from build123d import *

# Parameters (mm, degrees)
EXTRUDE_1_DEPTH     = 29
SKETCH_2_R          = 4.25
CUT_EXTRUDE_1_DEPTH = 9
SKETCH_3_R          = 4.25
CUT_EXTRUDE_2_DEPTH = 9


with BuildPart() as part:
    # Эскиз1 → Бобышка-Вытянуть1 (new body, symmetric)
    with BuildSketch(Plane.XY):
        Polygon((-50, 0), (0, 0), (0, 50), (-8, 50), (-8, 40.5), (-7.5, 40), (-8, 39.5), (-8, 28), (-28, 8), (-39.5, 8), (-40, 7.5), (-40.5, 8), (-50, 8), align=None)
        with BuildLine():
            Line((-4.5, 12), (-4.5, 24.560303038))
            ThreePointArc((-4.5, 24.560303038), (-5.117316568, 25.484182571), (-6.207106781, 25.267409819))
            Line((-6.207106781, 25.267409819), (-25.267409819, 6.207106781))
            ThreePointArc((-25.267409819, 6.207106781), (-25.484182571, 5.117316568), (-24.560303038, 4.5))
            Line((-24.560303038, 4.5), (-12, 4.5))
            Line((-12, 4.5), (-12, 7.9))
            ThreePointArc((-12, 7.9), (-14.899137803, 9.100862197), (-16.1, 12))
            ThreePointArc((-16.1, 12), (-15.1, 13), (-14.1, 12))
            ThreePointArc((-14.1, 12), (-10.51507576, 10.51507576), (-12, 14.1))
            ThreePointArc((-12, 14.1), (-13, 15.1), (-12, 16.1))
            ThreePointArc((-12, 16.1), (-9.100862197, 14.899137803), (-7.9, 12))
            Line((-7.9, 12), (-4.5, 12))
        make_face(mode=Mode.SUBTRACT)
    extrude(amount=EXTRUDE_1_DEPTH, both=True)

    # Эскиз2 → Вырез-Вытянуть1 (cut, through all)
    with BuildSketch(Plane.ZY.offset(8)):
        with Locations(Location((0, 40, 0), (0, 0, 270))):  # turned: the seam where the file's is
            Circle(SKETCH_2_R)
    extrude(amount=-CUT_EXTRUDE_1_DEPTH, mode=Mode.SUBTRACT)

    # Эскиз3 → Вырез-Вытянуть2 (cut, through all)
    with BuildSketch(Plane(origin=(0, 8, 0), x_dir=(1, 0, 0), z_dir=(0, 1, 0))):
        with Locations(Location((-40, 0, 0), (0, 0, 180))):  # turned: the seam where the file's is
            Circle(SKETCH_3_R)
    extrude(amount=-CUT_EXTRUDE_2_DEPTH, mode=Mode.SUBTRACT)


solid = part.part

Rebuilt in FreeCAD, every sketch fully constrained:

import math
import FreeCAD as App
import Part
import Sketcher
from FreeCAD import Vector


def add_polygon(sketch, points):
    """Adds a closed chain of lines whose ends are joined by coincident constraints."""
    first, n = sketch.GeometryCount, len(points)
    for a, b in zip(points, points[1:] + points[:1]):
        sketch.addGeometry(Part.LineSegment(App.Vector(*a, 0), App.Vector(*b, 0)), False)
    for i in range(n):
        sketch.addConstraint(Sketcher.Constraint("Coincident", first + i, 2, first + (i + 1) % n, 1))

doc = App.newDocument("Part")
body = doc.addObject("PartDesign::Body", "Body")

sketch1 = body.newObject("Sketcher::SketchObject", "Sketch")
sketch1.AttachmentSupport = (doc.getObject("XY_Plane"), [""])
sketch1.MapMode = "FlatFace"
add_polygon(sketch1, [(-50, 0), (0, 0), (0, 50), (-8, 50), (-8, 40.5), (-7.5, 40), (-8, 39.5), (-8, 28), (-28, 8), (-39.5, 8), (-40, 7.5), (-40.5, 8), (-50, 8)])
sketch1.addGeometry(Part.LineSegment(Vector(-4.5, 24.6, 0), Vector(-4.5, 12, 0)), False)
sketch1.addGeometry(Part.LineSegment(Vector(-4.5, 12, 0), Vector(-7.9, 12, 0)), False)
sketch1.addGeometry(Part.ArcOfCircle(Part.Circle(Vector(-12, 12, 0), Vector(0, 0, 1), 4.1), math.radians(0), math.radians(90)), False)
sketch1.addGeometry(Part.ArcOfCircle(Part.Circle(Vector(-12, 15.1, 0), Vector(0, 0, 1), 1), math.radians(90), math.radians(270)), False)
sketch1.addGeometry(Part.ArcOfCircle(Part.Circle(Vector(-12, 12, 0), Vector(0, 0, 1), 2.1), math.radians(180), math.radians(450)), False)
sketch1.addGeometry(Part.ArcOfCircle(Part.Circle(Vector(-15.1, 12, 0), Vector(0, 0, 1), 1), math.radians(0), math.radians(180)), False)
sketch1.addGeometry(Part.ArcOfCircle(Part.Circle(Vector(-12, 12, 0), Vector(0, 0, 1), 4.1), math.radians(180), math.radians(270)), False)
sketch1.addGeometry(Part.LineSegment(Vector(-12, 7.9, 0), Vector(-12, 4.5, 0)), False)
sketch1.addGeometry(Part.LineSegment(Vector(-12, 4.5, 0), Vector(-24.6, 4.5, 0)), False)
sketch1.addGeometry(Part.ArcOfCircle(Part.Circle(Vector(-24.6, 5.5, 0), Vector(0, 0, 1), 1), math.radians(135), math.radians(270)), False)
sketch1.addGeometry(Part.LineSegment(Vector(-25.3, 6.2, 0), Vector(-6.2, 25.3, 0)), False)
sketch1.addGeometry(Part.ArcOfCircle(Part.Circle(Vector(-5.5, 24.6, 0), Vector(0, 0, 1), 1), math.radians(0), math.radians(135)), False)
sketch1.addConstraint(Sketcher.Constraint("Coincident", 13, 2, 14, 1))
sketch1.addConstraint(Sketcher.Constraint("Coincident", 14, 2, 15, 1))
sketch1.addConstraint(Sketcher.Constraint("Tangent", 15, 2, 16, 1))
sketch1.addConstraint(Sketcher.Constraint("Tangent", 16, 2, 17, 2))
sketch1.addConstraint(Sketcher.Constraint("Tangent", 17, 1, 18, 1))
sketch1.addConstraint(Sketcher.Constraint("Tangent", 18, 2, 19, 1))
sketch1.addConstraint(Sketcher.Constraint("Coincident", 19, 2, 20, 1))
sketch1.addConstraint(Sketcher.Constraint("Coincident", 20, 2, 21, 1))
sketch1.addConstraint(Sketcher.Constraint("Tangent", 21, 2, 22, 2))
sketch1.addConstraint(Sketcher.Constraint("Tangent", 22, 1, 23, 1))
sketch1.addConstraint(Sketcher.Constraint("Tangent", 23, 2, 24, 2))
sketch1.addConstraint(Sketcher.Constraint("Tangent", 24, 1, 13, 1))
sketch1.addConstraint(Sketcher.Constraint("Horizontal", 0))
sketch1.addConstraint(Sketcher.Constraint("Vertical", 1))
sketch1.addConstraint(Sketcher.Constraint("Horizontal", 2))
sketch1.addConstraint(Sketcher.Constraint("Vertical", 3))
sketch1.addConstraint(Sketcher.Constraint("Vertical", 6))
sketch1.addConstraint(Sketcher.Constraint("Horizontal", 8))
sketch1.addConstraint(Sketcher.Constraint("Horizontal", 11))
sketch1.addConstraint(Sketcher.Constraint("Vertical", 12))
sketch1.addConstraint(Sketcher.Constraint("Vertical", 13))
sketch1.addConstraint(Sketcher.Constraint("Horizontal", 14))
sketch1.addConstraint(Sketcher.Constraint("Vertical", 20))
sketch1.addConstraint(Sketcher.Constraint("Horizontal", 21))
sketch1.addConstraint(Sketcher.Constraint("Coincident", 0, 2, -1, 1))
sketch1.addConstraint(Sketcher.Constraint("Coincident", 17, 3, 15, 3))
sketch1.addConstraint(Sketcher.Constraint("Coincident", 19, 3, 15, 3))
sketch1.addConstraint(Sketcher.Constraint("Equal", 16, 18))
sketch1.addConstraint(Sketcher.Constraint("Equal", 18, 22))
sketch1.addConstraint(Sketcher.Constraint("Equal", 22, 24))
sketch1.addConstraint(Sketcher.Constraint("Perpendicular", 4, 5))
sketch1.addConstraint(Sketcher.Constraint("Parallel", 5, 7))
sketch1.addConstraint(Sketcher.Constraint("Parallel", 7, 9))
sketch1.addConstraint(Sketcher.Constraint("Perpendicular", 9, 10))
sketch1.addConstraint(Sketcher.Constraint("Perpendicular", 10, 23))
sketch1.addConstraint(Sketcher.Constraint("Horizontal", 17, 3, 18, 3))
sketch1.addConstraint(Sketcher.Constraint("Horizontal", 8, 2, 10, 2))
sketch1.addConstraint(Sketcher.Constraint("Horizontal", 19, 3, 13, 2))
sketch1.addConstraint(Sketcher.Constraint("Vertical", 15, 3, 16, 3))
sketch1.addConstraint(Sketcher.Constraint("Vertical", 3, 2, 5, 2))
sketch1.addConstraint(Sketcher.Constraint("Vertical", 16, 2, 19, 2))
sketch1.addConstraint(Sketcher.Constraint("Equal", 0, 1))
sketch1.addConstraint(Sketcher.Constraint("Equal", 11, 3))
sketch1.addConstraint(Sketcher.Constraint("Equal", 8, 6))
sketch1.addConstraint(Sketcher.Constraint("Equal", 2, 12))
sketch1.addConstraint(Sketcher.Constraint("Equal", 21, 13))
sketch1.addConstraint(Sketcher.Constraint("Equal", 14, 20))
sketch1.addConstraint(Sketcher.Constraint("Radius", 16, 1.0))
sketch1.addConstraint(Sketcher.Constraint("Radius", 15, 4.1))
sketch1.addConstraint(Sketcher.Constraint("DistanceX", 0, 1, 0, 2, 50.0))
sketch1.addConstraint(Sketcher.Constraint("DistanceX", 2, 2, 2, 1, 8.0))
sketch1.addConstraint(Sketcher.Constraint("DistanceX", 8, 2, 8, 1, 11.5))
sketch1.addConstraint(Sketcher.Constraint("DistanceX", 11, 2, 11, 1, 9.5))
sketch1.addConstraint(Sketcher.Constraint("DistanceX", 14, 2, 14, 1, 3.4))
sketch1.addConstraint(Sketcher.Constraint("DistanceX", 15, 3, -1, 1, 12.0))
sketch1.addConstraint(Sketcher.Constraint("DistanceY", -1, 1, 15, 3, 12.0))
sketch1.addConstraint(Sketcher.Constraint("DistanceY", -1, 1, 4, 2, 40.0))
sketch1.addConstraint(Sketcher.Constraint("Distance", 23, 26.955339))
pad1 = body.newObject("PartDesign::Pad", "Pad")
pad1.Profile = sketch1
pad1.Length = 58
pad1.Midplane = True

sketch2 = body.newObject("Sketcher::SketchObject", "Sketch001")
sketch2.AttachmentSupport = (doc.getObject("YZ_Plane"), [""])
sketch2.MapMode = "FlatFace"
sketch2.AttachmentOffset = App.Placement(Vector(0, 0, -8), App.Rotation())
sketch2.addGeometry(Part.Circle(Vector(40, 0, 0), Vector(0, 0, 1), 4.2), False)
sketch2.addConstraint(Sketcher.Constraint("PointOnObject", 0, 3, -1))
sketch2.addConstraint(Sketcher.Constraint("Diameter", 0, 8.5))
sketch2.addConstraint(Sketcher.Constraint("DistanceX", -1, 1, 0, 3, 40.0))
pocket1 = body.newObject("PartDesign::Pocket", "Pocket")
pocket1.Profile = sketch2
pocket1.Type = "ThroughAll"
pocket1.Reversed = True

sketch3 = body.newObject("Sketcher::SketchObject", "Sketch002")
sketch3.AttachmentSupport = (doc.getObject("XZ_Plane"), [""])
sketch3.MapMode = "FlatFace"
sketch3.AttachmentOffset = App.Placement(Vector(0, 0, -8), App.Rotation())
sketch3.addGeometry(Part.Circle(Vector(-40, 0, 0), Vector(0, 0, 1), 4.2), False)
sketch3.addConstraint(Sketcher.Constraint("PointOnObject", 0, 3, -1))
sketch3.addConstraint(Sketcher.Constraint("Diameter", 0, 8.5))
sketch3.addConstraint(Sketcher.Constraint("DistanceX", 0, 3, -1, 1, 40.0))
pocket2 = body.newObject("PartDesign::Pocket", "Pocket001")
pocket2.Profile = sketch3
pocket2.Type = "ThroughAll"
pocket2.Reversed = True

doc.recompute()
